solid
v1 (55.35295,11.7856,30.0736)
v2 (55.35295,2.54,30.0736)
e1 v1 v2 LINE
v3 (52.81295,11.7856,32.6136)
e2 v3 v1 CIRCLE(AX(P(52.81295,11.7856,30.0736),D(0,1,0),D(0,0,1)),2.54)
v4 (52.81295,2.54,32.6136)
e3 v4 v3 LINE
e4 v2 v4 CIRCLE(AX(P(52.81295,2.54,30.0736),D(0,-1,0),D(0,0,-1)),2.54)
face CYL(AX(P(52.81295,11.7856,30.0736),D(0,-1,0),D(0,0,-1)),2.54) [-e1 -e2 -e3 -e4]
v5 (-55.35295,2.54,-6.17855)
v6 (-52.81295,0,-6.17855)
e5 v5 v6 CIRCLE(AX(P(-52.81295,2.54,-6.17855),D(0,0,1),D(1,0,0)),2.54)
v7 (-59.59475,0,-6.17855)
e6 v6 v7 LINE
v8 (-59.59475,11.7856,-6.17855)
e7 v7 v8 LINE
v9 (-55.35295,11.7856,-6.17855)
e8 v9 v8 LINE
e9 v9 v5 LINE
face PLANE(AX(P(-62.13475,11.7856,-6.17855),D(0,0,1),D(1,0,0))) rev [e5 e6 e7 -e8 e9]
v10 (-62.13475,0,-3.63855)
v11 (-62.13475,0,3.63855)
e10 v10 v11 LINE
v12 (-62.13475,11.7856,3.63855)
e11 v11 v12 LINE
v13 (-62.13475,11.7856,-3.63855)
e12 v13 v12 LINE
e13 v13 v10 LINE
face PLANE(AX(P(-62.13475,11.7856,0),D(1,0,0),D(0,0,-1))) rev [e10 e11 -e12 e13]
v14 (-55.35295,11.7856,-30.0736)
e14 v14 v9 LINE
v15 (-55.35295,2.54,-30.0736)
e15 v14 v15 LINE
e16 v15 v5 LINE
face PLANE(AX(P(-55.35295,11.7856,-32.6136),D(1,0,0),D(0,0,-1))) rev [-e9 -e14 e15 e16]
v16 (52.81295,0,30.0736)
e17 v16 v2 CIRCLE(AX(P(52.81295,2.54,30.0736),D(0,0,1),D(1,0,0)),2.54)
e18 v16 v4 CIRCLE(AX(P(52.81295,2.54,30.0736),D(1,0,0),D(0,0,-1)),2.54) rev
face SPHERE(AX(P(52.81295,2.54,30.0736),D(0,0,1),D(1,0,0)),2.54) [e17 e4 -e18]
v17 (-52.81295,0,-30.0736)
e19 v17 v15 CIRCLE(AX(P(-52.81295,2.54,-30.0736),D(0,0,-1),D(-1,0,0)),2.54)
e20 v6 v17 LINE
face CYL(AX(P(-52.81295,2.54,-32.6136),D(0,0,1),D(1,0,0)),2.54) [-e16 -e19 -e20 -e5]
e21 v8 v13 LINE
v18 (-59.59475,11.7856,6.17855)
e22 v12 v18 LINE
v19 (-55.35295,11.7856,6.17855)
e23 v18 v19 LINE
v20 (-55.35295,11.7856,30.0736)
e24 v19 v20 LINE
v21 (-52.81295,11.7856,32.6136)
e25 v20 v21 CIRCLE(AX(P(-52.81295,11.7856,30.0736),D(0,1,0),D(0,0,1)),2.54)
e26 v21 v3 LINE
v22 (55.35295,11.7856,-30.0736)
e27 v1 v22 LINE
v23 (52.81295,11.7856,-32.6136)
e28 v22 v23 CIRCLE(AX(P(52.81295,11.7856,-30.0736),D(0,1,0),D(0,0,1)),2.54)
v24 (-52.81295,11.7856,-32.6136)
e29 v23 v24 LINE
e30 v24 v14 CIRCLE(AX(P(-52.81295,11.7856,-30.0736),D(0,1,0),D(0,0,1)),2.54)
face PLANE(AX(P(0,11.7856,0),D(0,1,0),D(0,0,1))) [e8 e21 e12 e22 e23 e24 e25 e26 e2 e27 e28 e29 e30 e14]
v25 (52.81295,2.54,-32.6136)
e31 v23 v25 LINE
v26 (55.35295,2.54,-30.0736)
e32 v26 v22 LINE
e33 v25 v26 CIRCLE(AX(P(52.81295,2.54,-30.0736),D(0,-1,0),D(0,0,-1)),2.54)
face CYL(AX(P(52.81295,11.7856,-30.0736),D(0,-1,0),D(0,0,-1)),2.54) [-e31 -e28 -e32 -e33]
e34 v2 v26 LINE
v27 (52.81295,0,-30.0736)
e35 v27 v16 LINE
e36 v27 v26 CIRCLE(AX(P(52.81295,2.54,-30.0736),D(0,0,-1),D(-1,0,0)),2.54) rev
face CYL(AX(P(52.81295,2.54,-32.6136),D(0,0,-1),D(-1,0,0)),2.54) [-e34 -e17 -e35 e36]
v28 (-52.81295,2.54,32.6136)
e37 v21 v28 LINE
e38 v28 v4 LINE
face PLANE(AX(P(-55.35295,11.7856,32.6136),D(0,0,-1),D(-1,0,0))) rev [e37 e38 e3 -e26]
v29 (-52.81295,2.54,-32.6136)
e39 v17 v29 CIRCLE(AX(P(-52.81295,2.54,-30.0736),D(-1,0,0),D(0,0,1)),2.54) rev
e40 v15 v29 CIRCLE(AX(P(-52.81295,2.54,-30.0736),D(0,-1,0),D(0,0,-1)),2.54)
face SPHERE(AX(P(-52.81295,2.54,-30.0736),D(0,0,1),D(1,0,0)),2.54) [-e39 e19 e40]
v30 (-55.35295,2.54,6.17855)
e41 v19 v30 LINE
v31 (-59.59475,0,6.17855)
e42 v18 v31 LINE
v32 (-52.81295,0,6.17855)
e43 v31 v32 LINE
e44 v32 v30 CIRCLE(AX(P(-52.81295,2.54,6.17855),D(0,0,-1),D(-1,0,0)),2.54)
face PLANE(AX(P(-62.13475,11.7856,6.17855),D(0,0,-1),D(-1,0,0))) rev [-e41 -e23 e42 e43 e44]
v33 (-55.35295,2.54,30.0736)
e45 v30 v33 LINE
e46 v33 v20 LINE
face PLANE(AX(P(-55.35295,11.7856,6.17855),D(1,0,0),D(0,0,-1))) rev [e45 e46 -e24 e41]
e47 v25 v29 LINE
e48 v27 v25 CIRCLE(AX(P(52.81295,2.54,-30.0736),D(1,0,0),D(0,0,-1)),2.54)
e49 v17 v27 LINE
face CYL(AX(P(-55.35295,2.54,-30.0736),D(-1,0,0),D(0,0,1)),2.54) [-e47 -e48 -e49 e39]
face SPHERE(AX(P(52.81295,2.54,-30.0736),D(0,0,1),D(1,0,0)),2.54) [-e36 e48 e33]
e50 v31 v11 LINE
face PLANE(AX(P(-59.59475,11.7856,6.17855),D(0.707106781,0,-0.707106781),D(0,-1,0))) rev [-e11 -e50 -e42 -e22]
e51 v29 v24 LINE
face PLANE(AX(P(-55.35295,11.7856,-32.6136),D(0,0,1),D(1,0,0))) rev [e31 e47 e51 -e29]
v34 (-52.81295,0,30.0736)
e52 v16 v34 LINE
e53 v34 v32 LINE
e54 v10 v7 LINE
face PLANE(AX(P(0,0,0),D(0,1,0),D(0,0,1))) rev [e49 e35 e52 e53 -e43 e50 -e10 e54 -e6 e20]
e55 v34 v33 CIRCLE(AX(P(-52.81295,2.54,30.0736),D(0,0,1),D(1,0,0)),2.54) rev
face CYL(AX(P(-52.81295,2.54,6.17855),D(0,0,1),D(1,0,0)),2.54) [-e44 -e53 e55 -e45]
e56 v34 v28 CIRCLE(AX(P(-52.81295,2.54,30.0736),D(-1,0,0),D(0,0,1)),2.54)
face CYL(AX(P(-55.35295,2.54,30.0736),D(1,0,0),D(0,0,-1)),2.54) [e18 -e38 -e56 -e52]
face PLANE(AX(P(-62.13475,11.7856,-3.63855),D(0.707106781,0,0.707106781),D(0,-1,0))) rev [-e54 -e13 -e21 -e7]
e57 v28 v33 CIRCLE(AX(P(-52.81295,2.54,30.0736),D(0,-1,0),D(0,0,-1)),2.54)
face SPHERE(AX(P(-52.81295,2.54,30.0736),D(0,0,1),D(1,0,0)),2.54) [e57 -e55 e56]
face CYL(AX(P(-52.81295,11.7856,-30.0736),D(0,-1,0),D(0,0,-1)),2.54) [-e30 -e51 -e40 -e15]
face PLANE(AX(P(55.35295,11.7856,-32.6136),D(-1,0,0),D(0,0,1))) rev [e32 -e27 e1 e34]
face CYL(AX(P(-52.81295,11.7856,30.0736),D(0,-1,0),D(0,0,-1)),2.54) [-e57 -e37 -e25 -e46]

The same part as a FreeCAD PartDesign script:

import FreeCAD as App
import Part
import Sketcher
Q = App.Units.Quantity


def edges_at(feature, points):
    """Names of the edges that pass closest to the given points."""
    edges = feature.Shape.Edges
    near = lambda p: min(range(len(edges)), key=lambda i: edges[i].distToShape(Part.Vertex(*p))[0])
    return sorted({f"Edge{near(p) + 1}" for p in points})


def add_polygon(sketch, points):
    """Adds a closed chain of lines whose ends are joined by coincident constraints."""
    first, n = sketch.GeometryCount, len(points)
    for a, b in zip(points, points[1:] + points[:1]):
        sketch.addGeometry(Part.LineSegment(App.Vector(*a, 0), App.Vector(*b, 0)), False)
    for i in range(n):
        sketch.addConstraint(Sketcher.Constraint("Coincident", first + i, 2, first + (i + 1) % n, 1))

doc = App.newDocument("Part")
body = doc.addObject("PartDesign::Body", "Body")

# Sketch on XZ plane
sketch1 = body.newObject("Sketcher::SketchObject", "Sketch")
sketch1.AttachmentSupport = (doc.getObject("XZ_Plane"), [""])
sketch1.MapMode = "FlatFace"
add_polygon(sketch1, [(55, -33), (-55, -33), (-55, -6), (-62, -6), (-62, 6), (-55, 6), (-55, 33), (55, 33)])  # lines 0-7
sketch1.addConstraint(Sketcher.Constraint("Horizontal", 0))
sketch1.addConstraint(Sketcher.Constraint("Vertical", 1))
sketch1.addConstraint(Sketcher.Constraint("Horizontal", 2))
sketch1.addConstraint(Sketcher.Constraint("Vertical", 3))
sketch1.addConstraint(Sketcher.Constraint("Horizontal", 4))
sketch1.addConstraint(Sketcher.Constraint("Vertical", 5))
sketch1.addConstraint(Sketcher.Constraint("Horizontal", 6))
sketch1.addConstraint(Sketcher.Constraint("Vertical", 7))
sketch1.addConstraint(Sketcher.Constraint("Symmetric", 0, 2, 6, 2, -1, 1))
sketch1.addConstraint(Sketcher.Constraint("Symmetric", 1, 2, 4, 2, -1))
sketch1.addConstraint(Sketcher.Constraint("DistanceX", 2, 2, 2, 1, Q("0.267 in")))
sketch1.addConstraint(Sketcher.Constraint("DistanceY", 7, 2, 7, 1, Q("2.568 in")))
sketch1.addConstraint(Sketcher.Constraint("DistanceX", 0, 2, 0, 1, Q("4.3585 in")))
sketch1.addConstraint(Sketcher.Constraint("DistanceY", 3, 1, 3, 2, Q("0.4865 in")))
pad1 = body.newObject("PartDesign::Pad", "Pad")
pad1.Profile = sketch1
pad1.Length = Q("0.464 in")
pad1.Reversed = True
doc.recompute()

fillet = body.newObject("PartDesign::Fillet", "Fillet")
fillet.Base = (pad1, edges_at(pad1, [
    (-55.353, 0, -19.396),
    (0, 0, -32.614),
    (55.353, 0, 0),
    (55.353, 5.893, 32.614),
    (-55.353, 5.893, 32.614),
    (-55.353, 5.893, -32.614),
    (55.353, 5.893, -32.614),
    (0, 0, 32.614),
    (-55.353, 0, 19.396),
]))
fillet.Radius = Q("0.1 in")
doc.recompute()

chamfer = body.newObject("PartDesign::Chamfer", "Chamfer")
chamfer.Base = (fillet, edges_at(fillet, [(-62.135, 5.893, 6.179), (-62.135, 5.893, -6.179)]))
chamfer.Size = Q("0.1 in")

doc.recompute()
